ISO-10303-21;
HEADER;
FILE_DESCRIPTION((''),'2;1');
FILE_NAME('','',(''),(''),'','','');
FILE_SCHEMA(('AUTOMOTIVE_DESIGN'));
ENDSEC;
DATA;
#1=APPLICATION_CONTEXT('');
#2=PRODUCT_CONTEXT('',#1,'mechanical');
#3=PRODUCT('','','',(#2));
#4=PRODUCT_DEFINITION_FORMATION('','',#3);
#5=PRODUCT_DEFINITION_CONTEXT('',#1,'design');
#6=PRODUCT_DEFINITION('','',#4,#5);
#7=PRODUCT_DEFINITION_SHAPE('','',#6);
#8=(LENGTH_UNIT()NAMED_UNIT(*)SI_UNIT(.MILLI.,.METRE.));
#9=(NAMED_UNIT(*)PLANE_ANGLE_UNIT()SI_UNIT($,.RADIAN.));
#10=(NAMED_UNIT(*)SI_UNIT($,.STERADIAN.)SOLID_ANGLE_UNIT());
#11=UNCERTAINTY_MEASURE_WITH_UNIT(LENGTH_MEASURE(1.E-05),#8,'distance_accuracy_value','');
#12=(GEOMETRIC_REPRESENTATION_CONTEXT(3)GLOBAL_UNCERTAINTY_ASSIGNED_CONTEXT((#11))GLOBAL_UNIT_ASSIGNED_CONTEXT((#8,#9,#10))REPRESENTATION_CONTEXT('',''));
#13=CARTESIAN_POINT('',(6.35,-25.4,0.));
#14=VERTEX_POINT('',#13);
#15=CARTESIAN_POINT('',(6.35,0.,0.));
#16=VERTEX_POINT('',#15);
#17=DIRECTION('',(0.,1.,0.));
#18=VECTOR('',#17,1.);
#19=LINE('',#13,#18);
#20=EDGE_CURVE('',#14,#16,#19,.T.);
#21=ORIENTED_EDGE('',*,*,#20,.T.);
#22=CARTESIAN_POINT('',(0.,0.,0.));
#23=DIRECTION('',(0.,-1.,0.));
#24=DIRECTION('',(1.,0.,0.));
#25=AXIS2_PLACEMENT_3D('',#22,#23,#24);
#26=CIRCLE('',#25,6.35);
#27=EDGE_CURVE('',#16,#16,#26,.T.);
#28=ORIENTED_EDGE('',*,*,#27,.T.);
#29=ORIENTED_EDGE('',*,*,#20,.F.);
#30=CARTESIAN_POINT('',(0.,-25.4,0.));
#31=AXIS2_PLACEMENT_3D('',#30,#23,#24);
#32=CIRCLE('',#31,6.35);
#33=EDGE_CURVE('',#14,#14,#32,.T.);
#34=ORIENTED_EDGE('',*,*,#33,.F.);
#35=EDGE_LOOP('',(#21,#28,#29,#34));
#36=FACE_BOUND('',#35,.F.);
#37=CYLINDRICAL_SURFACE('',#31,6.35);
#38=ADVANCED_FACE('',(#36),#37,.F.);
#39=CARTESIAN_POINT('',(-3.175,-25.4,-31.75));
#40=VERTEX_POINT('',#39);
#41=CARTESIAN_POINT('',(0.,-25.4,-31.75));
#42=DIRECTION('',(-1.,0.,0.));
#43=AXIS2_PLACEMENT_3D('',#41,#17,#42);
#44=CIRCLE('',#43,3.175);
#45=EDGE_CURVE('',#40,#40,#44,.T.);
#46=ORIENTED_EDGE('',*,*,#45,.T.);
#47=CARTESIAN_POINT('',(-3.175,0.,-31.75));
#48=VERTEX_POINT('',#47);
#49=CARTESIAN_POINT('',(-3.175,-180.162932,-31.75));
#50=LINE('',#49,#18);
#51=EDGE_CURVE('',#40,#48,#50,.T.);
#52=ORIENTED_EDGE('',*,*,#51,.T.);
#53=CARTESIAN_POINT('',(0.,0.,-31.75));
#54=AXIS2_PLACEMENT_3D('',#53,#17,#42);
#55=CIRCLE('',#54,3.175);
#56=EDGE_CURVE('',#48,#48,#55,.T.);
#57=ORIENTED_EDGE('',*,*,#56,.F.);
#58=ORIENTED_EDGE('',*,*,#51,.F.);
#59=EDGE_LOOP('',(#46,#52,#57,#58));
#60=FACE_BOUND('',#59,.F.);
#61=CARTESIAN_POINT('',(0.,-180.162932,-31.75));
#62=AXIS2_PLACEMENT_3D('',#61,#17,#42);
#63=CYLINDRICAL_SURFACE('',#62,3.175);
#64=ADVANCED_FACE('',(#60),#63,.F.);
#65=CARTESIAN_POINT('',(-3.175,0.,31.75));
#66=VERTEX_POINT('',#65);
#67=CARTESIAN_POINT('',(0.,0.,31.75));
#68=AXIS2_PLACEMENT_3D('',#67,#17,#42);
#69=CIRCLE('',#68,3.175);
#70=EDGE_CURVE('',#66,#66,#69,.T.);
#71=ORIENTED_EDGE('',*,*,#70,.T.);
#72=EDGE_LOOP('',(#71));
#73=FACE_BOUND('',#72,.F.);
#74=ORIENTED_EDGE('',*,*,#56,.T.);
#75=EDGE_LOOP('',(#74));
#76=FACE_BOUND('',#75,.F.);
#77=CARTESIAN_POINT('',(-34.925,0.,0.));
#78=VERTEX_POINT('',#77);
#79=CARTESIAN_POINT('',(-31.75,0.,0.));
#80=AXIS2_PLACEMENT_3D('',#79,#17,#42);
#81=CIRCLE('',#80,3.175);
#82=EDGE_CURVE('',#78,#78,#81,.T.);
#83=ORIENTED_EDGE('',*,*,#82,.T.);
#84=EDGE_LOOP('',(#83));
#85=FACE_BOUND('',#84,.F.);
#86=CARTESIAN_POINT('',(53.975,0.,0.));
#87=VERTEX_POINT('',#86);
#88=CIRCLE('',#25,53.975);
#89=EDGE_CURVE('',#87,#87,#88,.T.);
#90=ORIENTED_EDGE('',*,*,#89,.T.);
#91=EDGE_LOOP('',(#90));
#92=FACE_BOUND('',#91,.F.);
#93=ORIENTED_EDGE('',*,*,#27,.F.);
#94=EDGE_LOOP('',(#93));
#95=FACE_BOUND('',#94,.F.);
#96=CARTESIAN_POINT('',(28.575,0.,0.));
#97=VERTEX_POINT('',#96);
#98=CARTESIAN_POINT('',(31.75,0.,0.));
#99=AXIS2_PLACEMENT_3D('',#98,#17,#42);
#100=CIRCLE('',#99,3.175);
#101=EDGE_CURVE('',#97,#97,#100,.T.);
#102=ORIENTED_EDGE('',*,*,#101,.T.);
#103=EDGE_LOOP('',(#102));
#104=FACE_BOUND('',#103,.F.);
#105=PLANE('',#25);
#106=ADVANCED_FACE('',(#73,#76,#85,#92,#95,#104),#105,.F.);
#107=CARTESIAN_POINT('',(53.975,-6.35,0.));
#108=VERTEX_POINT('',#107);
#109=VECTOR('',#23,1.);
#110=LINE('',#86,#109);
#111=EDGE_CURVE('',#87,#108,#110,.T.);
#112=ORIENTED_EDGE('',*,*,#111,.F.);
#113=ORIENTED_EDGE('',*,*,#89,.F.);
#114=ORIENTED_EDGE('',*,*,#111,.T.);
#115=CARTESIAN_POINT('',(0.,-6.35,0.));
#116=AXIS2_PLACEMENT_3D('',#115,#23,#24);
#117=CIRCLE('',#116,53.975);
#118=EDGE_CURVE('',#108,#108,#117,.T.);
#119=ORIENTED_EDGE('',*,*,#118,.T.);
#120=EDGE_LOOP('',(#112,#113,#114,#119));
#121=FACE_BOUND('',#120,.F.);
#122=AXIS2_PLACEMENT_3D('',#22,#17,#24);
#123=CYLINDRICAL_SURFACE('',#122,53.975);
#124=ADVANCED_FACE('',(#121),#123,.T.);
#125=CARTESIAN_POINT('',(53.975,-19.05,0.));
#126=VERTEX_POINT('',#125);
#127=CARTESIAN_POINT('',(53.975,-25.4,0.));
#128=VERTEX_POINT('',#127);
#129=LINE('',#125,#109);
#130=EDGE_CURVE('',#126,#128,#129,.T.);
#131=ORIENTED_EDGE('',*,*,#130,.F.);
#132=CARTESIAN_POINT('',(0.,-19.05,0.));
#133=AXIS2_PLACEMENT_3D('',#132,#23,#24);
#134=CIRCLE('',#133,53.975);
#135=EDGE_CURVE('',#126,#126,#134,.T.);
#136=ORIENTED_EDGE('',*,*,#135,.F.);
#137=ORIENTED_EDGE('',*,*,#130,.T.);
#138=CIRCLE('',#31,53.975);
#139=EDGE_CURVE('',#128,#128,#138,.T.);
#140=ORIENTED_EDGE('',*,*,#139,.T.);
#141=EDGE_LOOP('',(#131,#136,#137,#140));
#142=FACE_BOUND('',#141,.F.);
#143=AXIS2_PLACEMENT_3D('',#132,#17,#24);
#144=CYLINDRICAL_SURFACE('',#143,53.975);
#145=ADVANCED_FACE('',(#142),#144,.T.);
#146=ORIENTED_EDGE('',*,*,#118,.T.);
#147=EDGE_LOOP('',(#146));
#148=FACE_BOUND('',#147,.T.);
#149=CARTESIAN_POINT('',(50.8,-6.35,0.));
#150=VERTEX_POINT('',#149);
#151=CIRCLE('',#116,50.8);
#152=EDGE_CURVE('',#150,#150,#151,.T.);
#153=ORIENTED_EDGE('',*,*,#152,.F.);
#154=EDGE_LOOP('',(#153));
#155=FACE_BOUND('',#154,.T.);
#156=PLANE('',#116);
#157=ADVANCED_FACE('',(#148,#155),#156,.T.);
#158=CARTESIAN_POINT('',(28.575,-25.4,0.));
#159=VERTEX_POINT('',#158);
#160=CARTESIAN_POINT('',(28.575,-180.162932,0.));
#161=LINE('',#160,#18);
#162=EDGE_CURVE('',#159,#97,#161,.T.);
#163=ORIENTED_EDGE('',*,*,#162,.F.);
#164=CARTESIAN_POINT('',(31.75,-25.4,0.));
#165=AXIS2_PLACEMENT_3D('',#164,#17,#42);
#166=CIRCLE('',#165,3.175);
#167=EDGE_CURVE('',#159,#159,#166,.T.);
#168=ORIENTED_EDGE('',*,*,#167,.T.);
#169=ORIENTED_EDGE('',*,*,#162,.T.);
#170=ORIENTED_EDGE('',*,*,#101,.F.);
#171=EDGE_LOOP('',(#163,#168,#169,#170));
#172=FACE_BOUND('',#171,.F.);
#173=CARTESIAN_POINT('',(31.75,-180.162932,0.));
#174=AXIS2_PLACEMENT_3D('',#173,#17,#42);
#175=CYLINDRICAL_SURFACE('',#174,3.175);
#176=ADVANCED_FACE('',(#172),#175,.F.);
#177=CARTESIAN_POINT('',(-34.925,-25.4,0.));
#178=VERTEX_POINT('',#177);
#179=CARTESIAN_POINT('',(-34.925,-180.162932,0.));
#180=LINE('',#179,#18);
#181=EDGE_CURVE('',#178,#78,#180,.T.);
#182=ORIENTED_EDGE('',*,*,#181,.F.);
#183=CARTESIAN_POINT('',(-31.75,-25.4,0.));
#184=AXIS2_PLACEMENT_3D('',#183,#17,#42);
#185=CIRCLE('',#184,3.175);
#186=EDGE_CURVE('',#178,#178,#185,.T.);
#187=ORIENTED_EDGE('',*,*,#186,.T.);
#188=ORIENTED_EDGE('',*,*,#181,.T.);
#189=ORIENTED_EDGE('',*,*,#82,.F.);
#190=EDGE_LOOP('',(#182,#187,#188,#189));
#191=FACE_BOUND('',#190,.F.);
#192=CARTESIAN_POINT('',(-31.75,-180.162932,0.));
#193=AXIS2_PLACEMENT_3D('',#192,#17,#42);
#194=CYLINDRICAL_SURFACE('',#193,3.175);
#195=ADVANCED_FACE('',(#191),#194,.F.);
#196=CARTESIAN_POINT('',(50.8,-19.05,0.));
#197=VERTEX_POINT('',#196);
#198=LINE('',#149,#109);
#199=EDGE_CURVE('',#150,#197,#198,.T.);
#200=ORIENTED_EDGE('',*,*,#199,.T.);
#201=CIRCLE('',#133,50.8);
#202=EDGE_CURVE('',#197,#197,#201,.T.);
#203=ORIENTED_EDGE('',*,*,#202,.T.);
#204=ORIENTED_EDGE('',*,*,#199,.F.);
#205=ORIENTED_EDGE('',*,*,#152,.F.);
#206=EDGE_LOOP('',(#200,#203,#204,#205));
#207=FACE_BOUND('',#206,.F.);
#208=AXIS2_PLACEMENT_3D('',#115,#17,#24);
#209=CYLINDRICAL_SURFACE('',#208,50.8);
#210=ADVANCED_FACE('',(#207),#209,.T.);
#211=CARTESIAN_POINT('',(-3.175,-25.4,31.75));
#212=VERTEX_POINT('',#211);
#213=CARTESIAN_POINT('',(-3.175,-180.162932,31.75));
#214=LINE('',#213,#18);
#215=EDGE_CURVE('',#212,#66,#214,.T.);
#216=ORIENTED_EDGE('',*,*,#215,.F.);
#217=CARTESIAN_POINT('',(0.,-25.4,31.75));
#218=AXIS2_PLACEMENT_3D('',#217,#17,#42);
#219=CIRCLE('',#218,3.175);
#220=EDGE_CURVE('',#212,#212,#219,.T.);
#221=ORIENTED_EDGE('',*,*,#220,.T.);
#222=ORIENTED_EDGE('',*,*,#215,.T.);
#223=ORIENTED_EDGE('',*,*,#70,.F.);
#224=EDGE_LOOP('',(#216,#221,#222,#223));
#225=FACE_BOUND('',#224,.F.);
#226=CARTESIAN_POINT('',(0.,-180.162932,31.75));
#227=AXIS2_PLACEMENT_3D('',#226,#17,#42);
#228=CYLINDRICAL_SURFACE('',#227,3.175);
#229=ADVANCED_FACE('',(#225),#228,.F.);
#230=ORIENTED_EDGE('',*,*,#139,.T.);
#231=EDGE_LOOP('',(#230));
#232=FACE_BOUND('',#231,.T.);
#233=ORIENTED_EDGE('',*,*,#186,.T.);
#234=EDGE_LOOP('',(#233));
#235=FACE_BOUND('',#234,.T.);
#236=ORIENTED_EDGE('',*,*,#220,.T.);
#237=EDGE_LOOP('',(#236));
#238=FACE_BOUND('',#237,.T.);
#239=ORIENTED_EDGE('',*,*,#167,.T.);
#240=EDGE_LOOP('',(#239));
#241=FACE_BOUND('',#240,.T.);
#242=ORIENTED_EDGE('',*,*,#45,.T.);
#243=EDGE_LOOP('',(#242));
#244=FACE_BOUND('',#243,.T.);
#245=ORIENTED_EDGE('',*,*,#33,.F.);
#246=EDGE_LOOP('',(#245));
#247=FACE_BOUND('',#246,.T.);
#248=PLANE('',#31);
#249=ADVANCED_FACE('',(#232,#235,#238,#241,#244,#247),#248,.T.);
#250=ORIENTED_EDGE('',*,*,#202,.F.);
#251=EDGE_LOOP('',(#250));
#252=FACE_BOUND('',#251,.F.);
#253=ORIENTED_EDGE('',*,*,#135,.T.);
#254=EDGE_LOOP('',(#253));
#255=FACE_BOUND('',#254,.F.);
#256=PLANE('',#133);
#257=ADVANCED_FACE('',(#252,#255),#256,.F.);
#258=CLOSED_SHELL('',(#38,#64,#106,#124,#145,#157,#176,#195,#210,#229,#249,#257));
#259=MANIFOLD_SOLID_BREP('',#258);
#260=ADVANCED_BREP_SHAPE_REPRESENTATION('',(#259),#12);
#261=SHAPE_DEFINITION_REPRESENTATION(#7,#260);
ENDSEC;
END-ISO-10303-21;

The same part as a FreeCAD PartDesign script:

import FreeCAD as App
import Part
import Sketcher
from FreeCAD import Vector
Q = App.Units.Quantity

doc = App.newDocument("Part")
params = doc.addObject("Spreadsheet::Sheet", "Params")
for row, (alias, value) in enumerate([
    ("sketch1_diameter", "4.25 in"),
    ("pad1_length", "0.25 in"),
    ("sketch2_diameter", "4 in"),
    ("pad2_length", "0.5 in"),
    ("sketch3_diameter", "4.25 in"),
    ("pad3_length", "0.25 in"),
    ("sketch4_diameter", "0.25 in"),
    ("hole_diameter", "0.25 in"),
    ("sketch5_diameter", "0.5 in"),
], start=1):
    params.set(f"A{row}", alias)
    params.set(f"B{row}", "=" + value)
    params.setAlias(f"B{row}", alias)

body = doc.addObject("PartDesign::Body", "Body")

sketch1 = body.newObject("Sketcher::SketchObject", "Sketch")
sketch1.AttachmentSupport = (doc.getObject("XZ_Plane"), [""])
sketch1.MapMode = "FlatFace"
sketch1.addGeometry(Part.Circle(Vector(0, 0, 0), Vector(0, 0, 1), 54), False)
sketch1.addConstraint([
    Sketcher.Constraint("Coincident", 0, 3, -1, 1),
    Sketcher.Constraint("Diameter", 0, Q("4.25 in")),
])
sketch1.setExpression("Constraints[1]", "Params.sketch1_diameter")
pad1 = body.newObject("PartDesign::Pad", "Pad")
pad1.Profile = sketch1
pad1.setExpression("Length", "Params.pad1_length")

sketch2 = body.newObject("Sketcher::SketchObject", "Sketch001")
sketch2.AttachmentSupport = (doc.getObject("XZ_Plane"), [""])
sketch2.MapMode = "FlatFace"
sketch2.AttachmentOffset = App.Placement(Vector(0, 0, 0.25 * 25.4), App.Rotation())
sketch2.addGeometry(Part.Circle(Vector(0, 0, 0), Vector(0, 0, 1), 51), False)
sketch2.addConstraint([
    Sketcher.Constraint("Coincident", 0, 3, -1, 1),
    Sketcher.Constraint("Diameter", 0, Q("4 in")),
])
sketch2.setExpression("Constraints[1]", "Params.sketch2_diameter")
pad2 = body.newObject("PartDesign::Pad", "Pad001")
pad2.Profile = sketch2
pad2.setExpression("Length", "Params.pad2_length")

sketch3 = body.newObject("Sketcher::SketchObject", "Sketch002")
sketch3.AttachmentSupport = (doc.getObject("XZ_Plane"), [""])
sketch3.MapMode = "FlatFace"
sketch3.AttachmentOffset = App.Placement(Vector(0, 0, 0.75 * 25.4), App.Rotation())
sketch3.addGeometry(Part.Circle(Vector(0, 0, 0), Vector(0, 0, 1), 54), False)
sketch3.addConstraint([
    Sketcher.Constraint("Coincident", 0, 3, -1, 1),
    Sketcher.Constraint("Diameter", 0, Q("4.25 in")),
])
sketch3.setExpression("Constraints[1]", "Params.sketch3_diameter")
pad3 = body.newObject("PartDesign::Pad", "Pad002")
pad3.Profile = sketch3
pad3.setExpression("Length", "Params.pad3_length")

sketch4 = body.newObject("Sketcher::SketchObject", "Sketch003")
sketch4.AttachmentSupport = (doc.getObject("XZ_Plane"), [""])
sketch4.MapMode = "FlatFace"
sketch4.AttachmentOffset = App.Placement(Vector(0, 0, 1 * 25.4), App.Rotation())
sketch4.addGeometry([
    Part.Circle(Vector(0, 31.8, 0), Vector(0, 0, 1), 3.2),
    Part.Circle(Vector(31.8, 0, 0), Vector(0, 0, 1), 3.2),
    Part.Circle(Vector(0, -31.8, 0), Vector(0, 0, 1), 3.2),
    Part.Circle(Vector(-31.8, 0, 0), Vector(0, 0, 1), 3.2),
], False)
sketch4.addConstraint([
    Sketcher.Constraint("Equal", 0, 1),
    Sketcher.Constraint("Equal", 1, 2),
    Sketcher.Constraint("Equal", 2, 3),
    Sketcher.Constraint("Symmetric", 0, 3, 2, 3, -1, 1),
    Sketcher.Constraint("Symmetric", 1, 3, 3, 3, -1, 1),
    Sketcher.Constraint("PointOnObject", 0, 3, -2),
    Sketcher.Constraint("PointOnObject", 1, 3, -1),
    Sketcher.Constraint("Diameter", 0, Q("0.25 in")),
    Sketcher.Constraint("DistanceY", 2, 3, 0, 3, Q("2.5 in")),
    Sketcher.Constraint("DistanceX", 3, 3, 1, 3, Q("2.5 in")),
])
sketch4.setExpression("Constraints[7]", "Params.sketch4_diameter")
doc.recompute()
hole = body.newObject("PartDesign::Hole", "Hole")
hole.Profile = sketch4
hole.ThreadType = "None"
hole.setExpression("Diameter", "Params.hole_diameter")
hole.DepthType = "ThroughAll"

sketch5 = body.newObject("Sketcher::SketchObject", "Sketch004")
sketch5.AttachmentSupport = (doc.getObject("XZ_Plane"), [""])
sketch5.MapMode = "FlatFace"
sketch5.AttachmentOffset = App.Placement(Vector(0, 0, 1 * 25.4), App.Rotation())
sketch5.addGeometry(Part.Circle(Vector(0, 0, 0), Vector(0, 0, 1), 6), False)
sketch5.addConstraint([
    Sketcher.Constraint("Coincident", 0, 3, -1, 1),
    Sketcher.Constraint("Diameter", 0, Q("0.5 in")),
])
sketch5.setExpression("Constraints[1]", "Params.sketch5_diameter")
pocket1 = body.newObject("PartDesign::Pocket", "Pocket")
pocket1.Profile = sketch5
pocket1.Type = "ThroughAll"

doc.recompute()
